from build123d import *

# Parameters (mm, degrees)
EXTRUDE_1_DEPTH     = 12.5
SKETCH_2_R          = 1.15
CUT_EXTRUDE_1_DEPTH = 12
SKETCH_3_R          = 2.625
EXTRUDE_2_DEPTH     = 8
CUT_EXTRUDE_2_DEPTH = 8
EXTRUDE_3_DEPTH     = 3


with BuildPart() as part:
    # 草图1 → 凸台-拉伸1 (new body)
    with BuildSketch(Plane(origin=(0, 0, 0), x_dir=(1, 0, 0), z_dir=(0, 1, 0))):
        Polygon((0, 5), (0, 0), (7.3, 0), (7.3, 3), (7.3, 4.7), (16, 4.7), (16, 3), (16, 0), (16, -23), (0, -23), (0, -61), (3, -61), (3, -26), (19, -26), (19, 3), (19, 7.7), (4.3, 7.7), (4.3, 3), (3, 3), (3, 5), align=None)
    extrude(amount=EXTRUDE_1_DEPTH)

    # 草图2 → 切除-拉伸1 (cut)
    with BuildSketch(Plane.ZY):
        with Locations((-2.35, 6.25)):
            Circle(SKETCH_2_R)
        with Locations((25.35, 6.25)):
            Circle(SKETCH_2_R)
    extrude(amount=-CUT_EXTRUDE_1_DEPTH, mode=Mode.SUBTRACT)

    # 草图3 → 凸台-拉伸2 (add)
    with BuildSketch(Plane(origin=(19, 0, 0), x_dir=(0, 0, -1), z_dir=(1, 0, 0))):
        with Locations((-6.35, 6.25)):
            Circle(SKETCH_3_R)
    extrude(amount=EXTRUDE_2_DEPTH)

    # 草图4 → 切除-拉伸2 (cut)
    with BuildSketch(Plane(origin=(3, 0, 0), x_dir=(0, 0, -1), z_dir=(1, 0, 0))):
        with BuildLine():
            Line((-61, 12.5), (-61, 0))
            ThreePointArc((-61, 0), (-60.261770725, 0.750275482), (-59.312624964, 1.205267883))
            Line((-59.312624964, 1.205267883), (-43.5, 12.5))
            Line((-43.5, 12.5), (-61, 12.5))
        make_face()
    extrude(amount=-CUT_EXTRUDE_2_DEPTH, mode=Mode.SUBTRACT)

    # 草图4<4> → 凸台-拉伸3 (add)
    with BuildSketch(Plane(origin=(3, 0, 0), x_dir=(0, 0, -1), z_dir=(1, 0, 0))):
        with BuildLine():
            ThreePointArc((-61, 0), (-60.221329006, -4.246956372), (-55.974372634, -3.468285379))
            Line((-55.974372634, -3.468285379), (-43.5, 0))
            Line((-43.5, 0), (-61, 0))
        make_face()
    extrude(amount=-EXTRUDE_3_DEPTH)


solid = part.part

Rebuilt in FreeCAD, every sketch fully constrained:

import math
import FreeCAD as App
import Part
import Sketcher
Q = App.Units.Quantity

doc = App.newDocument("Part")
body = doc.addObject("PartDesign::Body", "Body")

# Sketch on XZ plane
sketch1 = doc.addObject("Sketcher::SketchObject", "Sketch")
body.addObject(sketch1)
sketch1.AttachmentSupport = (doc.XZ_Plane, [""])
sketch1.MapMode = "FlatFace"
sketch1.addGeometry([
    Part.LineSegment(App.Vector(0, -5, 0), App.Vector(0, 0, 0)),  # 0
    Part.LineSegment(App.Vector(0, 0, 0), App.Vector(7.3, 0, 0)),  # 1
    Part.LineSegment(App.Vector(7.3, 0, 0), App.Vector(7.3, -4.7, 0)),  # 2
    Part.LineSegment(App.Vector(7.3, -4.7, 0), App.Vector(16, -4.7, 0)),  # 3
    Part.LineSegment(App.Vector(16, -4.7, 0), App.Vector(16, 23, 0)),  # 4
    Part.LineSegment(App.Vector(16, 23, 0), App.Vector(0, 23, 0)),  # 5
    Part.LineSegment(App.Vector(0, 23, 0), App.Vector(0, 61, 0)),  # 6
    Part.LineSegment(App.Vector(0, 61, 0), App.Vector(3, 61, 0)),  # 7
    Part.LineSegment(App.Vector(3, 61, 0), App.Vector(3, 26, 0)),  # 8
    Part.LineSegment(App.Vector(3, 26, 0), App.Vector(19, 26, 0)),  # 9
    Part.LineSegment(App.Vector(19, 26, 0), App.Vector(19, -7.7, 0)),  # 10
    Part.LineSegment(App.Vector(19, -7.7, 0), App.Vector(4.3, -7.7, 0)),  # 11
    Part.LineSegment(App.Vector(4.3, -7.7, 0), App.Vector(4.3, -3, 0)),  # 12
    Part.LineSegment(App.Vector(4.3, -3, 0), App.Vector(3, -3, 0)),  # 13
    Part.LineSegment(App.Vector(3, -3, 0), App.Vector(3, -5, 0)),  # 14
    Part.LineSegment(App.Vector(3, -5, 0), App.Vector(0, -5, 0)),  # 15
], False)
sketch1.addConstraint([
    Sketcher.Constraint("Coincident", 0, 2, 1, 1),
    Sketcher.Constraint("Coincident", 1, 2, 2, 1),
    Sketcher.Constraint("Coincident", 2, 2, 3, 1),
    Sketcher.Constraint("Coincident", 3, 2, 4, 1),
    Sketcher.Constraint("Coincident", 4, 2, 5, 1),
    Sketcher.Constraint("Coincident", 5, 2, 6, 1),
    Sketcher.Constraint("Coincident", 6, 2, 7, 1),
    Sketcher.Constraint("Coincident", 7, 2, 8, 1),
    Sketcher.Constraint("Coincident", 8, 2, 9, 1),
    Sketcher.Constraint("Coincident", 9, 2, 10, 1),
    Sketcher.Constraint("Coincident", 10, 2, 11, 1),
    Sketcher.Constraint("Coincident", 11, 2, 12, 1),
    Sketcher.Constraint("Coincident", 12, 2, 13, 1),
    Sketcher.Constraint("Coincident", 13, 2, 14, 1),
    Sketcher.Constraint("Coincident", 14, 2, 15, 1),
    Sketcher.Constraint("Coincident", 15, 2, 0, 1),
    Sketcher.Constraint("Vertical", 0),
    Sketcher.Constraint("Horizontal", 1),
    Sketcher.Constraint("Vertical", 2),
    Sketcher.Constraint("Horizontal", 3),
    Sketcher.Constraint("Vertical", 4),
    Sketcher.Constraint("Horizontal", 5),
    Sketcher.Constraint("Vertical", 6),
    Sketcher.Constraint("Horizontal", 7),
    Sketcher.Constraint("Vertical", 8),
    Sketcher.Constraint("Horizontal", 9),
    Sketcher.Constraint("Vertical", 10),
    Sketcher.Constraint("Horizontal", 11),
    Sketcher.Constraint("Vertical", 12),
    Sketcher.Constraint("Horizontal", 13),
    Sketcher.Constraint("Vertical", 14),
    Sketcher.Constraint("Horizontal", 15),
    Sketcher.Constraint("Coincident", 0, 2, -1, 1),
    Sketcher.Constraint("PointOnObject", 5, 2, -2),
    Sketcher.Constraint("Vertical", 8, 2, 13, 2),
    Sketcher.Constraint("Equal", 5, 9),
    Sketcher.Constraint("Equal", 2, 12),
    Sketcher.Constraint("DistanceX", 5, 2, 5, 1, Q("16 mm")),
    Sketcher.Constraint("DistanceX", 7, 1, 7, 2, Q("3 mm")),
    Sketcher.Constraint("DistanceY", 0, 1, 0, 2, Q("5 mm")),
    Sketcher.Constraint("DistanceY", 6, 1, 6, 2, Q("38 mm")),
    Sketcher.Constraint("DistanceY", 8, 2, 8, 1, Q("35 mm")),
    Sketcher.Constraint("DistanceY", 14, 2, 14, 1, Q("2 mm")),
    Sketcher.Constraint("DistanceX", 1, 1, 1, 2, Q("7.3 mm")),
    Sketcher.Constraint("DistanceX", 11, 2, 11, 1, Q("14.7 mm")),
    Sketcher.Constraint("DistanceY", 2, 2, 2, 1, Q("4.7 mm")),
    Sketcher.Constraint("DistanceY", 4, 1, 4, 2, Q("27.7 mm")),
])
pad1 = doc.addObject("PartDesign::Pad", "Pad")
body.addObject(pad1)
pad1.Profile = sketch1
pad1.Length = 12.5
pad1.Reversed = True

# Sketch on YZ plane
sketch2 = doc.addObject("Sketcher::SketchObject", "Sketch001")
body.addObject(sketch2)
sketch2.AttachmentSupport = (doc.YZ_Plane, [""])
sketch2.MapMode = "FlatFace"
sketch2.addGeometry([
    Part.Circle(App.Vector(6.2, -2.4, 0), App.Vector(0, 0, 1), 1.1),
    Part.Circle(App.Vector(6.2, 25.4, 0), App.Vector(0, 0, 1), 1.1),
], False)
sketch2.addConstraint([
    Sketcher.Constraint("Equal", 0, 1),
    Sketcher.Constraint("Vertical", 0, 3, 1, 3),
    Sketcher.Constraint("Diameter", 0, Q("2.3 mm")),
    Sketcher.Constraint("DistanceY", 0, 3, 1, 3, Q("27.7 mm")),
    Sketcher.Constraint("DistanceX", -1, 1, 0, 3, Q("6.25 mm")),
    Sketcher.Constraint("DistanceY", 0, 3, -1, 1, Q("2.35 mm")),
])
pocket1 = doc.addObject("PartDesign::Pocket", "Pocket")
body.addObject(pocket1)
pocket1.Profile = sketch2
pocket1.Length = 12
pocket1.Reversed = True

# Sketch on YZ plane
sketch3 = doc.addObject("Sketcher::SketchObject", "Sketch002")
body.addObject(sketch3)
sketch3.AttachmentSupport = (doc.YZ_Plane, [""])
sketch3.MapMode = "FlatFace"
sketch3.AttachmentOffset = App.Placement(App.Vector(0, 0, 19), App.Rotation())
sketch3.addGeometry(Part.Circle(App.Vector(6.2, 6.3, 0), App.Vector(0, 0, 1), 2.6), False)
sketch3.addConstraint([
    Sketcher.Constraint("Diameter", 0, Q("5.25 mm")),
    Sketcher.Constraint("DistanceX", -1, 1, 0, 3, Q("6.25 mm")),
    Sketcher.Constraint("DistanceY", -1, 1, 0, 3, Q("6.35 mm")),
])
pad2 = doc.addObject("PartDesign::Pad", "Pad001")
body.addObject(pad2)
pad2.Profile = sketch3
pad2.Length = 8

# Sketch on YZ plane
sketch4 = doc.addObject("Sketcher::SketchObject", "Sketch003")
body.addObject(sketch4)
sketch4.AttachmentSupport = (doc.YZ_Plane, [""])
sketch4.MapMode = "FlatFace"
sketch4.AttachmentOffset = App.Placement(App.Vector(0, 0, 3), App.Rotation())
sketch4.addGeometry([
    Part.LineSegment(App.Vector(12.5, 61, 0), App.Vector(0, 61, 0)),
    Part.ArcOfCircle(Part.Circle(App.Vector(-1.7, 58.5, 0), App.Vector(0, 0, 1), 3.1), math.radians(16), math.radians(55)),
    Part.LineSegment(App.Vector(1.2, 59.3, 0), App.Vector(12.5, 43.5, 0)),
    Part.LineSegment(App.Vector(12.5, 43.5, 0), App.Vector(12.5, 61, 0)),
], False)
sketch4.addConstraint([
    Sketcher.Constraint("Coincident", 0, 2, 1, 2),
    Sketcher.Constraint("Coincident", 1, 1, 2, 1),
    Sketcher.Constraint("Coincident", 2, 2, 3, 1),
    Sketcher.Constraint("Coincident", 3, 2, 0, 1),
    Sketcher.Constraint("Horizontal", 0),
    Sketcher.Constraint("Vertical", 3),
    Sketcher.Constraint("PointOnObject", 0, 2, -2),
    Sketcher.Constraint("DistanceX", 0, 2, 0, 1, Q("12.5 mm")),
    Sketcher.Constraint("DistanceY", 3, 1, 3, 2, Q("17.5 mm")),
    Sketcher.Constraint("DistanceY", -1, 1, 0, 2, Q("61 mm")),
    Sketcher.Constraint("Radius", 1, Q("3.05311 mm")),
    Sketcher.Constraint("Distance", 2, Q("19.432192 mm")),
    Sketcher.Constraint("DistanceX", 1, 3, 1, 1, Q("2.939411 mm")),
])
pocket2 = doc.addObject("PartDesign::Pocket", "Pocket001")
body.addObject(pocket2)
pocket2.Profile = sketch4
pocket2.Length = 8

# Sketch on YZ plane
sketch5 = doc.addObject("Sketcher::SketchObject", "Sketch004")
body.addObject(sketch5)
sketch5.AttachmentSupport = (doc.YZ_Plane, [""])
sketch5.MapMode = "FlatFace"
sketch5.AttachmentOffset = App.Placement(App.Vector(0, 0, 3), App.Rotation())
sketch5.addGeometry([
    Part.ArcOfCircle(Part.Circle(App.Vector(-1.7, 58.5, 0), App.Vector(0, 0, 1), 3.1), math.radians(55), math.radians(235)),
    Part.LineSegment(App.Vector(-3.5, 56, 0), App.Vector(0, 43.5, 0)),
    Part.LineSegment(App.Vector(0, 43.5, 0), App.Vector(0, 61, 0)),
], False)
sketch5.addConstraint([
    Sketcher.Constraint("Coincident", 0, 2, 1, 1),
    Sketcher.Constraint("Coincident", 1, 2, 2, 1),
    Sketcher.Constraint("Coincident", 2, 2, 0, 1),
    Sketcher.Constraint("Vertical", 2),
    Sketcher.Constraint("PointOnObject", 1, 2, -2),
    Sketcher.Constraint("DistanceY", 2, 1, 2, 2, Q("17.5 mm")),
    Sketcher.Constraint("DistanceY", -1, 1, 2, 2, Q("61 mm")),
    Sketcher.Constraint("Radius", 0, Q("3.05311 mm")),
    Sketcher.Constraint("Distance", 1, Q("12.947547 mm")),
    Sketcher.Constraint("DistanceX", 0, 3, -1, 1, Q("1.734143 mm")),
])
pad3 = doc.addObject("PartDesign::Pad", "Pad002")
body.addObject(pad3)
pad3.Profile = sketch5
pad3.Length = 3
pad3.Reversed = True

doc.recompute()
